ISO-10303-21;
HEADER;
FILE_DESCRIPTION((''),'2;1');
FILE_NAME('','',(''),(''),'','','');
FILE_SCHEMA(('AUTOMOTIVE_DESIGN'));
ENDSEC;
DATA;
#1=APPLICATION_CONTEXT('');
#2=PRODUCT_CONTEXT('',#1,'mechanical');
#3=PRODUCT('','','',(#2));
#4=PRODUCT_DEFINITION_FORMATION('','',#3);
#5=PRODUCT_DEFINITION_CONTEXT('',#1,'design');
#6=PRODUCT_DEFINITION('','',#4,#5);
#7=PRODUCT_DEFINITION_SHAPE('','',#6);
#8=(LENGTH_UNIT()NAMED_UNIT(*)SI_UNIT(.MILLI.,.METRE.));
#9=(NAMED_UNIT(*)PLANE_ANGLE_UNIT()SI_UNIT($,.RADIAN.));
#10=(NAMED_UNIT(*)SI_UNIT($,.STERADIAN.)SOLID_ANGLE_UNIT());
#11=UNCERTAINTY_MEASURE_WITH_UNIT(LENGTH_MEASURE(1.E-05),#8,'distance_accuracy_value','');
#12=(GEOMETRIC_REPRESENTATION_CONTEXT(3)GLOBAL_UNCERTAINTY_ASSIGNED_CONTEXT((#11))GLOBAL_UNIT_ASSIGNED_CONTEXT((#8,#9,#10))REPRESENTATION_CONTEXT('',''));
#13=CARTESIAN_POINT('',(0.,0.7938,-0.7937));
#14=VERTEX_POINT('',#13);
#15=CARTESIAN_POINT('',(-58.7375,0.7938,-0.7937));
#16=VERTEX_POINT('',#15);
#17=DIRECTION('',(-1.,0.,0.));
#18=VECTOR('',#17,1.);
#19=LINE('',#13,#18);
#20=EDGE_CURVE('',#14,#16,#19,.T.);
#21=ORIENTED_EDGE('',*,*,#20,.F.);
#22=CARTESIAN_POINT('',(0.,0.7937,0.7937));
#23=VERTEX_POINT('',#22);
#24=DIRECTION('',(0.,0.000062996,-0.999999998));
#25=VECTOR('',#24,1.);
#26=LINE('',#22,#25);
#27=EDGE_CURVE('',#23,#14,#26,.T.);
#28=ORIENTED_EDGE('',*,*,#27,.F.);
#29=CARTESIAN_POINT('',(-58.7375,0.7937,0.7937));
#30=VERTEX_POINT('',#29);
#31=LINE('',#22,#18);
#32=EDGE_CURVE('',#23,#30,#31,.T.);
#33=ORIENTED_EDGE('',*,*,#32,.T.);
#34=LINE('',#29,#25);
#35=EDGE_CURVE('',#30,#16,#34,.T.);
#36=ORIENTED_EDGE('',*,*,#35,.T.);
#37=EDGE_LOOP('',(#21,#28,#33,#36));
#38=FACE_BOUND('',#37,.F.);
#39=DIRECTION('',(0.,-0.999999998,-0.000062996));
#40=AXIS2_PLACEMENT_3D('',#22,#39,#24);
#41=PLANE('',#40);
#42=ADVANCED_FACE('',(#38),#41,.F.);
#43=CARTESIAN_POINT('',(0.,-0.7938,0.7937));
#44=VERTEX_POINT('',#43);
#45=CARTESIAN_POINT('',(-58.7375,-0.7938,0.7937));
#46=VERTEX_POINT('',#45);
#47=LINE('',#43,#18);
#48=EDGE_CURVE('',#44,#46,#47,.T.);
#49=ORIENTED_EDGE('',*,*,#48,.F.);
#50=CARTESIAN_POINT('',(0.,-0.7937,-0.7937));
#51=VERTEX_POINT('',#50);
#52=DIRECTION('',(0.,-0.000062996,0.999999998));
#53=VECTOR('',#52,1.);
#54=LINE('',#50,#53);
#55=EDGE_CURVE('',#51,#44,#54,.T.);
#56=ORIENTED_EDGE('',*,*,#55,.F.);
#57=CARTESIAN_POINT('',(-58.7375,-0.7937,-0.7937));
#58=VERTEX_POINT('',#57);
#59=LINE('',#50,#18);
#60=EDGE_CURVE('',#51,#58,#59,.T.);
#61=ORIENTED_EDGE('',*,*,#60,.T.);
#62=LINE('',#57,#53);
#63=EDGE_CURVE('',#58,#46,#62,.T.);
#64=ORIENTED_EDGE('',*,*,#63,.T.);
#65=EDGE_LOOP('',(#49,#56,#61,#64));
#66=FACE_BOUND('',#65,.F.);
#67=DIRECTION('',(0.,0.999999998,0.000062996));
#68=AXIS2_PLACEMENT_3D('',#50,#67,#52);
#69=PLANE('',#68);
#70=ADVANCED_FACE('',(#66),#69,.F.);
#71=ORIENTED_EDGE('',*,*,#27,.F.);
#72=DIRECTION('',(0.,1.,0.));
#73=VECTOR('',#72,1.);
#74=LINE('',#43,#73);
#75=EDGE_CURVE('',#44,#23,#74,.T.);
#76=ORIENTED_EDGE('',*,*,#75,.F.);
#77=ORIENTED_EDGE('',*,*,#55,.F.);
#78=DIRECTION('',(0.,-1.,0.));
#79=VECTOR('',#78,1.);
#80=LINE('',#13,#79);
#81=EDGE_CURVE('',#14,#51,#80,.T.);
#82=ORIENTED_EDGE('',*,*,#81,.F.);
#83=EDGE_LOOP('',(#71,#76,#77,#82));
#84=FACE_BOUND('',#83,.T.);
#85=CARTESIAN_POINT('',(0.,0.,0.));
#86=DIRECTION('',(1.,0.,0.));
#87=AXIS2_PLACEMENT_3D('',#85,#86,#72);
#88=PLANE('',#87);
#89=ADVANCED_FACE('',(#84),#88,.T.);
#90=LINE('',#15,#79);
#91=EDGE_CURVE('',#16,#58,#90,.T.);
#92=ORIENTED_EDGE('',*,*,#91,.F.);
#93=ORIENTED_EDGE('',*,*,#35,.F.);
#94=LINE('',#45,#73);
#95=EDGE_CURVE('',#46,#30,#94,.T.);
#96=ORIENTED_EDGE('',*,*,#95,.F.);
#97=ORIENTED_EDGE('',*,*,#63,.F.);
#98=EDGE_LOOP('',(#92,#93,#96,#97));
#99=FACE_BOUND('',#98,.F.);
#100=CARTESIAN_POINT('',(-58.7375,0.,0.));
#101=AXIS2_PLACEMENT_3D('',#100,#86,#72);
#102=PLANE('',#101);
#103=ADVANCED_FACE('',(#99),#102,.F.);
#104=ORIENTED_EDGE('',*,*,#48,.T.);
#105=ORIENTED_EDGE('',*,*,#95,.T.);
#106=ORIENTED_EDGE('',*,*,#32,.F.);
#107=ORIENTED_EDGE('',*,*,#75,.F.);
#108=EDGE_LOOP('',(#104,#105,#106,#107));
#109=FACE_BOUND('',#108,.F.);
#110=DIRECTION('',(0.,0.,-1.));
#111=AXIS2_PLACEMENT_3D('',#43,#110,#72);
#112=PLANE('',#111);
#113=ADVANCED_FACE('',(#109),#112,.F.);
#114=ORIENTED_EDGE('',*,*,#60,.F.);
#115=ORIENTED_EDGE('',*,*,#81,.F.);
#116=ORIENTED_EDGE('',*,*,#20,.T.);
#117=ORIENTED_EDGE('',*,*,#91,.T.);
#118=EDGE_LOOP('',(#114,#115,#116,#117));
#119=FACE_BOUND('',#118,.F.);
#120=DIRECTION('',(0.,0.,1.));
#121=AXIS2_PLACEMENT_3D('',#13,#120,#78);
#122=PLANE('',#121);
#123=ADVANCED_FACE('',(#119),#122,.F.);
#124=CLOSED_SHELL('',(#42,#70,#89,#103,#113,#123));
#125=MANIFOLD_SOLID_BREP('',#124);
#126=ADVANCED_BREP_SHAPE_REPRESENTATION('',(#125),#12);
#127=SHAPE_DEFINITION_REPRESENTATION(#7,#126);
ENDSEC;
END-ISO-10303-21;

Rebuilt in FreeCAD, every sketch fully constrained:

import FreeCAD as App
import Part
import Sketcher
from FreeCAD import Vector
Q = App.Units.Quantity


def add_polygon(sketch, points):
    """Adds a closed chain of lines whose ends are joined by coincident constraints."""
    first, n = sketch.GeometryCount, len(points)
    for a, b in zip(points, points[1:] + points[:1]):
        sketch.addGeometry(Part.LineSegment(App.Vector(*a, 0), App.Vector(*b, 0)), False)
    for i in range(n):
        sketch.addConstraint(Sketcher.Constraint("Coincident", first + i, 2, first + (i + 1) % n, 1))

doc = App.newDocument("Part")
body = doc.addObject("PartDesign::Body", "Body")

sketch1 = body.newObject("Sketcher::SketchObject", "Sketch")
sketch1.AttachmentSupport = (doc.getObject("YZ_Plane"), [""])
sketch1.MapMode = "FlatFace"
add_polygon(sketch1, [(-0.8, 0.8), (-0.8, -0.8), (0.8, -0.8), (0.8, 0.8)])
sketch1.addConstraint([
    Sketcher.Constraint("Vertical", 0),
    Sketcher.Constraint("Horizontal", 1),
    Sketcher.Constraint("Vertical", 2),
    Sketcher.Constraint("Horizontal", 3),
    Sketcher.Constraint("Symmetric", 0, 2, 2, 2, -1, 1),
    Sketcher.Constraint("Equal", 3, 0),
    Sketcher.Constraint("DistanceX", 1, 1, 1, 2, Q("0.0625 in")),
])
pad1 = body.newObject("PartDesign::Pad", "Pad")
pad1.Profile = sketch1
pad1.Length = Q("2.3125 in")
pad1.Reversed = True

doc.recompute()
